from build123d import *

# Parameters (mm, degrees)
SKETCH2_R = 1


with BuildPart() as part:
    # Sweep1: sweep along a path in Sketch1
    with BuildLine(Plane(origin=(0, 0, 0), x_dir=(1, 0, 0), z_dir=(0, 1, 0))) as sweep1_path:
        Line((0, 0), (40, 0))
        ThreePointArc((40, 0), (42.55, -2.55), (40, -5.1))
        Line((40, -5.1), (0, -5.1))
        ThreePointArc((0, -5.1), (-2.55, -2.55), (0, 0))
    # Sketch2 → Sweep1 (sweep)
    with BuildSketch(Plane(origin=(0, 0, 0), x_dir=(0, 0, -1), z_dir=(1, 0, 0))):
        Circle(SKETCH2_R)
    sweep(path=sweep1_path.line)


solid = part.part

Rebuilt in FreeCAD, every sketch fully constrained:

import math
import FreeCAD as App
import Part
import Sketcher

doc = App.newDocument("Part")
params = doc.addObject("Spreadsheet::Sheet", "Params")
for row, (alias, value) in enumerate([
    ("sketch1_diameter", "2 mm"),
    ("sketch2_width", "40 mm"),
    ("sketch2_radius", "2.55 mm"),
], start=1):
    params.set(f"A{row}", alias)
    params.set(f"B{row}", "=" + value)
    params.setAlias(f"B{row}", alias)

body = doc.addObject("PartDesign::Body", "Body")

# Sketch on YZ plane
sketch1 = body.newObject("Sketcher::SketchObject", "Sketch")
sketch1.AttachmentSupport = (doc.getObject("YZ_Plane"), [""])
sketch1.MapMode = "FlatFace"
sketch1.addGeometry(Part.Circle(App.Vector(0, 0, 0), App.Vector(0, 0, 1), 1), False)
sketch1.addConstraint([
    Sketcher.Constraint("Coincident", 0, 3, -1, 1),
    Sketcher.Constraint("Diameter", 0, 2.0),
])
sketch1.setExpression("Constraints[1]", "Params.sketch1_diameter")

# Sketch on XZ plane
sketch2 = body.newObject("Sketcher::SketchObject", "Sketch001")
sketch2.AttachmentSupport = (doc.getObject("XZ_Plane"), [""])
sketch2.MapMode = "FlatFace"
sketch2.addGeometry([
    Part.LineSegment(App.Vector(0, 0, 0), App.Vector(40, 0, 0)),
    Part.ArcOfCircle(Part.Circle(App.Vector(40, 2.5, 0), App.Vector(0, 0, 1), 2.5), math.radians(-90), math.radians(90)),
    Part.LineSegment(App.Vector(40, 5.1, 0), App.Vector(0, 5.1, 0)),
    Part.ArcOfCircle(Part.Circle(App.Vector(0, 2.5, 0), App.Vector(0, 0, 1), 2.5), math.radians(90), math.radians(270)),
], False)
sketch2.addConstraint([
    Sketcher.Constraint("Tangent", 0, 2, 1, 1),
    Sketcher.Constraint("Tangent", 1, 2, 2, 1),
    Sketcher.Constraint("Tangent", 2, 2, 3, 1),
    Sketcher.Constraint("Tangent", 3, 2, 0, 1),
    Sketcher.Constraint("Horizontal", 0),
    Sketcher.Constraint("Horizontal", 2),
    Sketcher.Constraint("Coincident", 3, 2, -1, 1),
    Sketcher.Constraint("DistanceX", 0, 1, 0, 2, 40.0),
    Sketcher.Constraint("Radius", 1, 2.55),
])
sketch2.setExpression("Constraints[7]", "Params.sketch2_width")
sketch2.setExpression("Constraints[8]", "Params.sketch2_radius")
doc.recompute()

additivepipe = body.newObject("PartDesign::AdditivePipe", "AdditivePipe")
additivepipe.Profile = sketch1
additivepipe.Spine = (sketch2, ["Edge1", "Edge2", "Edge3", "Edge4"])

doc.recompute()
